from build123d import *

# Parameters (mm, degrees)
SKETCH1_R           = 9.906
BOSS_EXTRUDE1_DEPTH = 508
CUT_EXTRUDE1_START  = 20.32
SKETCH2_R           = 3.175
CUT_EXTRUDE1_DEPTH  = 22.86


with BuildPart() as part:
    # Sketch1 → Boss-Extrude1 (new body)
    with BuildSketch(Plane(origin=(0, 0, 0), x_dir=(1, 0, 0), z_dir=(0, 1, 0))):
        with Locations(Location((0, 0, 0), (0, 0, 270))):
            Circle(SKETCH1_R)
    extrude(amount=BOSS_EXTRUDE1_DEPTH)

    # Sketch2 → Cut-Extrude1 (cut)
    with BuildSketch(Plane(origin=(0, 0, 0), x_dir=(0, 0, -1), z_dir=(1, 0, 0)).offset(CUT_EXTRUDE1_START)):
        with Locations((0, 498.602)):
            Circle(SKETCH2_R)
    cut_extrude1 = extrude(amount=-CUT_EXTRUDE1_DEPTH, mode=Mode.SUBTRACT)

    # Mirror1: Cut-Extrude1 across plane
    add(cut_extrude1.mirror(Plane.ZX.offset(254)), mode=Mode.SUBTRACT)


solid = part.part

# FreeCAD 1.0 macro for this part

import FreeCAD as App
import Part
import Sketcher
Q = App.Units.Quantity

doc = App.newDocument("Part")
body = doc.addObject("PartDesign::Body", "Body")

# Sketch on XZ plane
sketch1 = doc.addObject("Sketcher::SketchObject", "Sketch")
body.addObject(sketch1)
sketch1.AttachmentSupport = (doc.XZ_Plane, [""])
sketch1.MapMode = "FlatFace"
sketch1.addGeometry(Part.Circle(App.Vector(0, 0, 0), App.Vector(0, 0, 1), 10), False)
sketch1.addConstraint([
    Sketcher.Constraint("Coincident", 0, 3, -1, 1),
    Sketcher.Constraint("Diameter", 0, Q("0.78 in")),
])
pad1 = doc.addObject("PartDesign::Pad", "Pad")
body.addObject(pad1)
pad1.Profile = sketch1
pad1.Length = Q("20 in")
pad1.Reversed = True

# Sketch on YZ plane
sketch2 = doc.addObject("Sketcher::SketchObject", "Sketch001")
body.addObject(sketch2)
sketch2.AttachmentSupport = (doc.YZ_Plane, [""])
sketch2.MapMode = "FlatFace"
sketch2.AttachmentOffset = App.Placement(App.Vector(0, 0, 0.8 * 25.4), App.Rotation())
sketch2.addGeometry(Part.Circle(App.Vector(498.6, 0, 0), App.Vector(0, 0, 1), 3.2), False)
sketch2.addConstraint([
    Sketcher.Constraint("PointOnObject", 0, 3, -1),
    Sketcher.Constraint("Diameter", 0, Q("0.25 in")),
    Sketcher.Constraint("DistanceX", -1, 1, 0, 3, Q("19.63 in")),
])
pocket1 = doc.addObject("PartDesign::Pocket", "Pocket")
body.addObject(pocket1)
pocket1.Profile = sketch2
pocket1.Length = Q("0.9 in")
doc.recompute()

datumplane = doc.addObject("PartDesign::Plane", "DatumPlane")
body.addObject(datumplane)
datumplane.AttachmentSupport = (doc.XZ_Plane, [""])
datumplane.MapMode = "FlatFace"
datumplane.AttachmentOffset = App.Placement(App.Vector(0, 0, -10 * 25.4), App.Rotation())
mirrored = doc.addObject("PartDesign::Mirrored", "Mirrored")
body.addObject(mirrored)
mirrored.Originals = [pocket1]
mirrored.MirrorPlane = (datumplane, [""])
body.Tip = mirrored

doc.recompute()
